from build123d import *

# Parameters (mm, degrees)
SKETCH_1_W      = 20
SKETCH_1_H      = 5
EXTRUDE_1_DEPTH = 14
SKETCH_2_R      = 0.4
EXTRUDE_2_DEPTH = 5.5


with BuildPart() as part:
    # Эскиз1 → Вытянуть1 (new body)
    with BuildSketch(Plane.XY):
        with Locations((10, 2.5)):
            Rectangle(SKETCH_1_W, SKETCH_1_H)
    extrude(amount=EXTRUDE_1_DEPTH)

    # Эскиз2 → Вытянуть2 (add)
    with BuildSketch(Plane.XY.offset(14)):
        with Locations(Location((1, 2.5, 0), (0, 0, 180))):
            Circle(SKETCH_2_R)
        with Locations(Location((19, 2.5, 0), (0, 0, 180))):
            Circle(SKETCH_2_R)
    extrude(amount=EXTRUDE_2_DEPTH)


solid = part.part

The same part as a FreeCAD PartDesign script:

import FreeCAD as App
import Part
import Sketcher
from FreeCAD import Vector
Q = App.Units.Quantity

doc = App.newDocument("Part")
body = doc.addObject("PartDesign::Body", "Body")

# Sketch on XY plane
sketch1 = body.newObject("Sketcher::SketchObject", "Sketch")
sketch1.AttachmentSupport = (doc.getObject("XY_Plane"), [""])
sketch1.MapMode = "FlatFace"
sketch1.addGeometry([
    Part.LineSegment(Vector(0, 5, 0), Vector(0, 0, 0)),
    Part.LineSegment(Vector(0, 0, 0), Vector(20, 0, 0)),
    Part.LineSegment(Vector(20, 0, 0), Vector(20, 5, 0)),
    Part.LineSegment(Vector(20, 5, 0), Vector(0, 5, 0)),
], False)
sketch1.addConstraint([
    Sketcher.Constraint("Coincident", 0, 2, 1, 1),
    Sketcher.Constraint("Coincident", 1, 2, 2, 1),
    Sketcher.Constraint("Coincident", 2, 2, 3, 1),
    Sketcher.Constraint("Coincident", 3, 2, 0, 1),
    Sketcher.Constraint("Vertical", 0),
    Sketcher.Constraint("Horizontal", 1),
    Sketcher.Constraint("Vertical", 2),
    Sketcher.Constraint("Horizontal", 3),
    Sketcher.Constraint("Coincident", 0, 2, -1, 1),
    Sketcher.Constraint("DistanceX", 1, 1, 1, 2, Q("20 mm")),
    Sketcher.Constraint("DistanceY", 0, 2, 0, 1, Q("5 mm")),
])
pad1 = body.newObject("PartDesign::Pad", "Pad")
pad1.Profile = sketch1
pad1.Length = 14

# Sketch on XY plane
sketch2 = body.newObject("Sketcher::SketchObject", "Sketch001")
sketch2.AttachmentSupport = (doc.getObject("XY_Plane"), [""])
sketch2.MapMode = "FlatFace"
sketch2.AttachmentOffset = App.Placement(Vector(0, 0, 14), App.Rotation())
sketch2.addGeometry([
    Part.Circle(Vector(1, 2.5, 0), Vector(0, 0, 1), 0.4),
    Part.Circle(Vector(19, 2.5, 0), Vector(0, 0, 1), 0.4),
], False)
sketch2.addConstraint([
    Sketcher.Constraint("Equal", 0, 1),
    Sketcher.Constraint("Horizontal", 0, 3, 1, 3),
    Sketcher.Constraint("Diameter", 0, Q("0.8 mm")),
    Sketcher.Constraint("DistanceX", -1, 1, 0, 3, Q("1 mm")),
    Sketcher.Constraint("DistanceX", -1, 1, 1, 3, Q("19 mm")),
    Sketcher.Constraint("DistanceY", -1, 1, 0, 3, Q("2.5 mm")),
])
pad2 = body.newObject("PartDesign::Pad", "Pad001")
pad2.Profile = sketch2
pad2.Length = 5.5

doc.recompute()
